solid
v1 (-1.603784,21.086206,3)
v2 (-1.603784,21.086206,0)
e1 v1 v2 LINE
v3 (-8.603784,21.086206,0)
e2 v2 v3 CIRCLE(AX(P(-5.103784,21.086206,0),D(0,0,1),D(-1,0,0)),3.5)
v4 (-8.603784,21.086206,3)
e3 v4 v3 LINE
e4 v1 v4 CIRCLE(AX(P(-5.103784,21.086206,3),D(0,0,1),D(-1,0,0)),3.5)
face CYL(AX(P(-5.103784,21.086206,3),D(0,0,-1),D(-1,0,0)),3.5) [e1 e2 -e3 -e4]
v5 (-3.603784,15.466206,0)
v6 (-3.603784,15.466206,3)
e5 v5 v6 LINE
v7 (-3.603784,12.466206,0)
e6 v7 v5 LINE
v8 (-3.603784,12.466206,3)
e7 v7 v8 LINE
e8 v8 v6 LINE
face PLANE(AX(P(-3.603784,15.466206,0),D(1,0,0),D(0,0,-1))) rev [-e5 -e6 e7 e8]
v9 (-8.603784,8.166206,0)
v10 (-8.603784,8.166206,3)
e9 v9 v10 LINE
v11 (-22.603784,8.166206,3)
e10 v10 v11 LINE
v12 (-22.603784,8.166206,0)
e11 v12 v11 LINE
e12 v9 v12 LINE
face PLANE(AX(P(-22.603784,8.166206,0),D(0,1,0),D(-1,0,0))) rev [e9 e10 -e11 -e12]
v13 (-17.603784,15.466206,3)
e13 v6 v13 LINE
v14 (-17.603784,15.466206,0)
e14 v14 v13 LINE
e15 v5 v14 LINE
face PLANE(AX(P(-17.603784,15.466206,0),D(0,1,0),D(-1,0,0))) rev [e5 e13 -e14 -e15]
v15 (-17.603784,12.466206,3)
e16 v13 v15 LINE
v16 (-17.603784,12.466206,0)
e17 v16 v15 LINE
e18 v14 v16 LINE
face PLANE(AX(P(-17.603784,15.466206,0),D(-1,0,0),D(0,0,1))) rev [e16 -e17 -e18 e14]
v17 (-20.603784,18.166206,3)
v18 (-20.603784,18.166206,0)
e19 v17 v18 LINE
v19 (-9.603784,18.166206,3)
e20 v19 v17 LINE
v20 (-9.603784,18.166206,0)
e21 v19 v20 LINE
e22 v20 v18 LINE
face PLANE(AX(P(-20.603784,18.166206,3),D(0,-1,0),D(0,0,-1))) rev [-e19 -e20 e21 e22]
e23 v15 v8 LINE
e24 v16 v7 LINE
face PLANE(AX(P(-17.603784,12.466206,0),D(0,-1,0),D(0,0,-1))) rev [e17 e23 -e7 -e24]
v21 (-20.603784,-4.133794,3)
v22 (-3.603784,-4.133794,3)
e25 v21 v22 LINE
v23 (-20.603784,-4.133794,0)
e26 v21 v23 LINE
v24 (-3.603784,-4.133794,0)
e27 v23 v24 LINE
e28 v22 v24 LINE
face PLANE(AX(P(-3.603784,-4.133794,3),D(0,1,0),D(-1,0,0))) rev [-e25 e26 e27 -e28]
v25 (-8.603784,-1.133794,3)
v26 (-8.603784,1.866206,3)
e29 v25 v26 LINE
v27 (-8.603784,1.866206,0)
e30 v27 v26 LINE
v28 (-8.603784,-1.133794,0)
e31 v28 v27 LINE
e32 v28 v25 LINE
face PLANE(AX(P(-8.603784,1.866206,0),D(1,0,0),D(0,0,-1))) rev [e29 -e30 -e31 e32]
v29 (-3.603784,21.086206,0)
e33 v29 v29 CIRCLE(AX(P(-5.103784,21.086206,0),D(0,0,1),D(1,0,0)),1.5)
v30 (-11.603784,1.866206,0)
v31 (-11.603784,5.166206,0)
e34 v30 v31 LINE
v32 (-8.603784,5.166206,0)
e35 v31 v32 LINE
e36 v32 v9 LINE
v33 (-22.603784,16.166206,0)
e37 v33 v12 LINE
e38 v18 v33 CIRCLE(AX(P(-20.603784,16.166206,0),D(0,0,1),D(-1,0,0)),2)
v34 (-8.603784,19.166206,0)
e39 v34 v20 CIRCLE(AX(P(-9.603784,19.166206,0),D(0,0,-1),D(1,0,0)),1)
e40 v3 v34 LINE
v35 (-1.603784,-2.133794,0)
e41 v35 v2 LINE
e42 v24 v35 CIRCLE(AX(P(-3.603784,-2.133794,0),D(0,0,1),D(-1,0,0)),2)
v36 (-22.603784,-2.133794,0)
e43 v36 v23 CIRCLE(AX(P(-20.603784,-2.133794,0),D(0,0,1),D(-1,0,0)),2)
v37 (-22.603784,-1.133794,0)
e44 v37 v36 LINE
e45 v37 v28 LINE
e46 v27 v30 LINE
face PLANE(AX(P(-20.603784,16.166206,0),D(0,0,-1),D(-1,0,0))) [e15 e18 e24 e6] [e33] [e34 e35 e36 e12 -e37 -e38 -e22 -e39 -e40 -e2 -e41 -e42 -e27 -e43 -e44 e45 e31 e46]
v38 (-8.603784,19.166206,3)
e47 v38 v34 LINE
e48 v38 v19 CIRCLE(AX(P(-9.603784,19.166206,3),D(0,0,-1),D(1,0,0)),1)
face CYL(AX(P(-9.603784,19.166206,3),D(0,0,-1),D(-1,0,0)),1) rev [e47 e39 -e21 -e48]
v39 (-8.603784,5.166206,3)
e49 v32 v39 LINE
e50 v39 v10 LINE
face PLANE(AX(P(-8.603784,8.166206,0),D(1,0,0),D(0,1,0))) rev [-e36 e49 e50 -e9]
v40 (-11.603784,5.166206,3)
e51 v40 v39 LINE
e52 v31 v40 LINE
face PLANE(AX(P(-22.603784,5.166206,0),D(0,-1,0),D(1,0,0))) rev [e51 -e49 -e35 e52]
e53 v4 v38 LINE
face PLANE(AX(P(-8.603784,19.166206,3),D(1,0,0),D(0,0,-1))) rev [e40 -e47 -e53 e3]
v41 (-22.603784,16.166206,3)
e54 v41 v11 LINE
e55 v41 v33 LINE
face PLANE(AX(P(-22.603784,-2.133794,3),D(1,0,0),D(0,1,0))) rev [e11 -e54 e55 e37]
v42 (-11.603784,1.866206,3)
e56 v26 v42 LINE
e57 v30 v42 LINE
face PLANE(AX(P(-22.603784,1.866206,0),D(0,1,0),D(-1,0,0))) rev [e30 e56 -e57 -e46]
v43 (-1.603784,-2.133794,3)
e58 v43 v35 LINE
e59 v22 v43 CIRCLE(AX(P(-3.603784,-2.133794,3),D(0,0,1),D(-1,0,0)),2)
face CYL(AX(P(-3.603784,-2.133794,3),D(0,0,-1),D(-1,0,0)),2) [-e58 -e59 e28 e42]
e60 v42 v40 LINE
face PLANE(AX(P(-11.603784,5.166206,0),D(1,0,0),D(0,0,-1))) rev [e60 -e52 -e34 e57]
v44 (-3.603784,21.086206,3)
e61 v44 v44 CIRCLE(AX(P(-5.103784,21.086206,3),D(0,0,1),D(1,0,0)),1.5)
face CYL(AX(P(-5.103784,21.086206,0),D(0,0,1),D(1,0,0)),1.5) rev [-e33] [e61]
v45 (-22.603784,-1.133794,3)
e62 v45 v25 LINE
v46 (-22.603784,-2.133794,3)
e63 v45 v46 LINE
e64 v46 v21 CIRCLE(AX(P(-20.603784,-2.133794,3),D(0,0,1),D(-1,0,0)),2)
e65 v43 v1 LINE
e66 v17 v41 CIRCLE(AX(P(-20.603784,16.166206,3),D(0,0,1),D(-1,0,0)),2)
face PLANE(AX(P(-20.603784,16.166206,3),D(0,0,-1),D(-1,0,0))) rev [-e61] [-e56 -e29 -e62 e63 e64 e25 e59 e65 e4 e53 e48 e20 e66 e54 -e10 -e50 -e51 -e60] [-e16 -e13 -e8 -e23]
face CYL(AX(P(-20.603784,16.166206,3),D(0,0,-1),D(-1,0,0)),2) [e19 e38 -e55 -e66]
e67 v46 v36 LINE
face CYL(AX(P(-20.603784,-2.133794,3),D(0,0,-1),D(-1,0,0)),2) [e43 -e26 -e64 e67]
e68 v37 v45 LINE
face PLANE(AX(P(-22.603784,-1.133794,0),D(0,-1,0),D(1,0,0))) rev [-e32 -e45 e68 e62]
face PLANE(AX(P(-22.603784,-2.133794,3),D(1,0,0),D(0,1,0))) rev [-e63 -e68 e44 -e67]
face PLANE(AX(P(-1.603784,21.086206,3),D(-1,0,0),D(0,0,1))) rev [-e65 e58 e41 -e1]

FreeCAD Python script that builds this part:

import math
import FreeCAD as App
import Part
import Sketcher
from FreeCAD import Vector


def add_polygon(sketch, points):
    """Adds a closed chain of lines whose ends are joined by coincident constraints."""
    first, n = sketch.GeometryCount, len(points)
    for a, b in zip(points, points[1:] + points[:1]):
        sketch.addGeometry(Part.LineSegment(App.Vector(*a, 0), App.Vector(*b, 0)), False)
    for i in range(n):
        sketch.addConstraint(Sketcher.Constraint("Coincident", first + i, 2, first + (i + 1) % n, 1))

doc = App.newDocument("Part")
body = doc.addObject("PartDesign::Body", "Body")

sketch1 = doc.addObject("Sketcher::SketchObject", "Sketch")
body.addObject(sketch1)
sketch1.AttachmentSupport = (doc.XY_Plane, [""])
sketch1.MapMode = "FlatFace"
sketch1.addGeometry([
    Part.LineSegment(Vector(-1.6, -2.1, 0), Vector(-1.6, 21.1, 0)),
    Part.ArcOfCircle(Part.Circle(Vector(-5.1, 21.1, 0), Vector(0, 0, 1), 3.5), math.radians(0), math.radians(180)),
    Part.LineSegment(Vector(-8.6, 21.1, 0), Vector(-8.6, 19.2, 0)),
    Part.ArcOfCircle(Part.Circle(Vector(-9.6, 19.2, 0), Vector(0, 0, 1), 1), math.radians(-90), math.radians(0)),
    Part.LineSegment(Vector(-9.6, 18.2, 0), Vector(-20.6, 18.2, 0)),
    Part.ArcOfCircle(Part.Circle(Vector(-20.6, 16.2, 0), Vector(0, 0, 1), 2), math.radians(90), math.radians(180)),
    Part.LineSegment(Vector(-22.6, 16.2, 0), Vector(-22.6, -2.1, 0)),
    Part.ArcOfCircle(Part.Circle(Vector(-20.6, -2.1, 0), Vector(0, 0, 1), 2), math.radians(-180), math.radians(-90)),
    Part.LineSegment(Vector(-20.6, -4.1, 0), Vector(-3.6, -4.1, 0)),
    Part.ArcOfCircle(Part.Circle(Vector(-3.6, -2.1, 0), Vector(0, 0, 1), 2), math.radians(-90), math.radians(0)),
], False)
sketch1.addConstraint([
    Sketcher.Constraint("Tangent", 0, 2, 1, 1),
    Sketcher.Constraint("Tangent", 1, 2, 2, 1),
    Sketcher.Constraint("Tangent", 2, 2, 3, 2),
    Sketcher.Constraint("Tangent", 3, 1, 4, 1),
    Sketcher.Constraint("Tangent", 4, 2, 5, 1),
    Sketcher.Constraint("Tangent", 5, 2, 6, 1),
    Sketcher.Constraint("Tangent", 6, 2, 7, 1),
    Sketcher.Constraint("Tangent", 7, 2, 8, 1),
    Sketcher.Constraint("Tangent", 8, 2, 9, 1),
    Sketcher.Constraint("Tangent", 9, 2, 0, 1),
    Sketcher.Constraint("Vertical", 0),
    Sketcher.Constraint("Vertical", 2),
    Sketcher.Constraint("Horizontal", 4),
    Sketcher.Constraint("Vertical", 6),
    Sketcher.Constraint("Horizontal", 8),
    Sketcher.Constraint("Equal", 5, 7),
    Sketcher.Constraint("Equal", 7, 9),
    Sketcher.Constraint("Radius", 3, 1.0),
    Sketcher.Constraint("Radius", 5, 2.0),
    Sketcher.Constraint("Radius", 1, 3.5),
    Sketcher.Constraint("DistanceX", 4, 2, 4, 1, 11.0),
    Sketcher.Constraint("DistanceY", 6, 2, 6, 1, 18.3),
    Sketcher.Constraint("DistanceY", 0, 1, 0, 2, 23.22),
    Sketcher.Constraint("DistanceX", 1, 3, -1, 1, 5.103784),
    Sketcher.Constraint("DistanceY", -1, 1, 1, 3, 21.086206),
])
pad1 = doc.addObject("PartDesign::Pad", "Pad")
body.addObject(pad1)
pad1.Profile = sketch1
pad1.Length = 3

sketch2 = doc.addObject("Sketcher::SketchObject", "Sketch001")
body.addObject(sketch2)
sketch2.AttachmentSupport = (doc.XY_Plane, [""])
sketch2.MapMode = "FlatFace"
sketch2.AttachmentOffset = App.Placement(Vector(0, 0, 3), App.Rotation())
add_polygon(sketch2, [(-17.6, 15.5), (-17.6, 12.5), (-3.6, 12.5), (-3.6, 15.5)])
add_polygon(sketch2, [(-22.6, 8.2), (-22.6, 5.2), (-8.6, 5.2), (-8.6, 8.2)])
add_polygon(sketch2, [(-22.6, 1.9), (-22.6, -1.1), (-8.6, -1.1), (-8.6, 1.9)])
sketch2.addConstraint([
    Sketcher.Constraint("Vertical", 0),
    Sketcher.Constraint("Horizontal", 1),
    Sketcher.Constraint("Vertical", 2),
    Sketcher.Constraint("Horizontal", 3),
    Sketcher.Constraint("Vertical", 4),
    Sketcher.Constraint("Horizontal", 5),
    Sketcher.Constraint("Vertical", 6),
    Sketcher.Constraint("Horizontal", 7),
    Sketcher.Constraint("Vertical", 8),
    Sketcher.Constraint("Horizontal", 9),
    Sketcher.Constraint("Vertical", 10),
    Sketcher.Constraint("Horizontal", 11),
    Sketcher.Constraint("Vertical", 7, 2, 8, 2),
    Sketcher.Constraint("Vertical", 6, 2, 9, 2),
    Sketcher.Constraint("Equal", 3, 5),
    Sketcher.Constraint("Equal", 2, 4),
    Sketcher.Constraint("Equal", 6, 8),
    Sketcher.Constraint("DistanceX", 1, 1, 1, 2, 14.0),
    Sketcher.Constraint("DistanceY", 0, 2, 0, 1, 3.0),
    Sketcher.Constraint("DistanceX", 4, 2, 0, 2, 5.0),
    Sketcher.Constraint("DistanceY", 4, 2, 0, 2, 7.3),
    Sketcher.Constraint("DistanceY", 8, 2, 4, 2, 6.3),
    Sketcher.Constraint("DistanceX", 0, 2, -1, 1, 17.603784),
    Sketcher.Constraint("DistanceY", -1, 1, 0, 2, 12.466206),
])
pocket1 = doc.addObject("PartDesign::Pocket", "Pocket")
body.addObject(pocket1)
pocket1.Profile = sketch2
pocket1.Length = 3

sketch3 = doc.addObject("Sketcher::SketchObject", "Sketch002")
body.addObject(sketch3)
sketch3.AttachmentSupport = (doc.XY_Plane, [""])
sketch3.MapMode = "FlatFace"
sketch3.AttachmentOffset = App.Placement(Vector(0, 0, 3), App.Rotation())
sketch3.addGeometry(Part.Circle(Vector(-5.1, 21.1, 0), Vector(0, 0, 1), 1.5), False)
sketch3.addConstraint([
    Sketcher.Constraint("Diameter", 0, 3.0),
    Sketcher.Constraint("DistanceX", 0, 3, -1, 1, 5.103784),
    Sketcher.Constraint("DistanceY", -1, 1, 0, 3, 21.086206),
])
pocket2 = doc.addObject("PartDesign::Pocket", "Pocket001")
body.addObject(pocket2)
pocket2.Profile = sketch3
pocket2.Length = 3

sketch4 = doc.addObject("Sketcher::SketchObject", "Sketch003")
body.addObject(sketch4)
sketch4.AttachmentSupport = (doc.XY_Plane, [""])
sketch4.MapMode = "FlatFace"
sketch4.AttachmentOffset = App.Placement(Vector(0, 0, 3), App.Rotation())
add_polygon(sketch4, [(-22.6, 5.2), (-22.6, 1.9), (-11.6, 1.9), (-11.6, 5.2)])
sketch4.addConstraint([
    Sketcher.Constraint("Vertical", 0),
    Sketcher.Constraint("Horizontal", 1),
    Sketcher.Constraint("Vertical", 2),
    Sketcher.Constraint("Horizontal", 3),
    Sketcher.Constraint("DistanceX", 1, 1, 1, 2, 11.0),
    Sketcher.Constraint("DistanceY", 0, 2, 0, 1, 3.3),
    Sketcher.Constraint("DistanceX", 0, 2, -1, 1, 22.603784),
    Sketcher.Constraint("DistanceY", -1, 1, 0, 2, 1.866206),
])
pocket3 = doc.addObject("PartDesign::Pocket", "Pocket002")
body.addObject(pocket3)
pocket3.Profile = sketch4
pocket3.Length = 3

doc.recompute()
